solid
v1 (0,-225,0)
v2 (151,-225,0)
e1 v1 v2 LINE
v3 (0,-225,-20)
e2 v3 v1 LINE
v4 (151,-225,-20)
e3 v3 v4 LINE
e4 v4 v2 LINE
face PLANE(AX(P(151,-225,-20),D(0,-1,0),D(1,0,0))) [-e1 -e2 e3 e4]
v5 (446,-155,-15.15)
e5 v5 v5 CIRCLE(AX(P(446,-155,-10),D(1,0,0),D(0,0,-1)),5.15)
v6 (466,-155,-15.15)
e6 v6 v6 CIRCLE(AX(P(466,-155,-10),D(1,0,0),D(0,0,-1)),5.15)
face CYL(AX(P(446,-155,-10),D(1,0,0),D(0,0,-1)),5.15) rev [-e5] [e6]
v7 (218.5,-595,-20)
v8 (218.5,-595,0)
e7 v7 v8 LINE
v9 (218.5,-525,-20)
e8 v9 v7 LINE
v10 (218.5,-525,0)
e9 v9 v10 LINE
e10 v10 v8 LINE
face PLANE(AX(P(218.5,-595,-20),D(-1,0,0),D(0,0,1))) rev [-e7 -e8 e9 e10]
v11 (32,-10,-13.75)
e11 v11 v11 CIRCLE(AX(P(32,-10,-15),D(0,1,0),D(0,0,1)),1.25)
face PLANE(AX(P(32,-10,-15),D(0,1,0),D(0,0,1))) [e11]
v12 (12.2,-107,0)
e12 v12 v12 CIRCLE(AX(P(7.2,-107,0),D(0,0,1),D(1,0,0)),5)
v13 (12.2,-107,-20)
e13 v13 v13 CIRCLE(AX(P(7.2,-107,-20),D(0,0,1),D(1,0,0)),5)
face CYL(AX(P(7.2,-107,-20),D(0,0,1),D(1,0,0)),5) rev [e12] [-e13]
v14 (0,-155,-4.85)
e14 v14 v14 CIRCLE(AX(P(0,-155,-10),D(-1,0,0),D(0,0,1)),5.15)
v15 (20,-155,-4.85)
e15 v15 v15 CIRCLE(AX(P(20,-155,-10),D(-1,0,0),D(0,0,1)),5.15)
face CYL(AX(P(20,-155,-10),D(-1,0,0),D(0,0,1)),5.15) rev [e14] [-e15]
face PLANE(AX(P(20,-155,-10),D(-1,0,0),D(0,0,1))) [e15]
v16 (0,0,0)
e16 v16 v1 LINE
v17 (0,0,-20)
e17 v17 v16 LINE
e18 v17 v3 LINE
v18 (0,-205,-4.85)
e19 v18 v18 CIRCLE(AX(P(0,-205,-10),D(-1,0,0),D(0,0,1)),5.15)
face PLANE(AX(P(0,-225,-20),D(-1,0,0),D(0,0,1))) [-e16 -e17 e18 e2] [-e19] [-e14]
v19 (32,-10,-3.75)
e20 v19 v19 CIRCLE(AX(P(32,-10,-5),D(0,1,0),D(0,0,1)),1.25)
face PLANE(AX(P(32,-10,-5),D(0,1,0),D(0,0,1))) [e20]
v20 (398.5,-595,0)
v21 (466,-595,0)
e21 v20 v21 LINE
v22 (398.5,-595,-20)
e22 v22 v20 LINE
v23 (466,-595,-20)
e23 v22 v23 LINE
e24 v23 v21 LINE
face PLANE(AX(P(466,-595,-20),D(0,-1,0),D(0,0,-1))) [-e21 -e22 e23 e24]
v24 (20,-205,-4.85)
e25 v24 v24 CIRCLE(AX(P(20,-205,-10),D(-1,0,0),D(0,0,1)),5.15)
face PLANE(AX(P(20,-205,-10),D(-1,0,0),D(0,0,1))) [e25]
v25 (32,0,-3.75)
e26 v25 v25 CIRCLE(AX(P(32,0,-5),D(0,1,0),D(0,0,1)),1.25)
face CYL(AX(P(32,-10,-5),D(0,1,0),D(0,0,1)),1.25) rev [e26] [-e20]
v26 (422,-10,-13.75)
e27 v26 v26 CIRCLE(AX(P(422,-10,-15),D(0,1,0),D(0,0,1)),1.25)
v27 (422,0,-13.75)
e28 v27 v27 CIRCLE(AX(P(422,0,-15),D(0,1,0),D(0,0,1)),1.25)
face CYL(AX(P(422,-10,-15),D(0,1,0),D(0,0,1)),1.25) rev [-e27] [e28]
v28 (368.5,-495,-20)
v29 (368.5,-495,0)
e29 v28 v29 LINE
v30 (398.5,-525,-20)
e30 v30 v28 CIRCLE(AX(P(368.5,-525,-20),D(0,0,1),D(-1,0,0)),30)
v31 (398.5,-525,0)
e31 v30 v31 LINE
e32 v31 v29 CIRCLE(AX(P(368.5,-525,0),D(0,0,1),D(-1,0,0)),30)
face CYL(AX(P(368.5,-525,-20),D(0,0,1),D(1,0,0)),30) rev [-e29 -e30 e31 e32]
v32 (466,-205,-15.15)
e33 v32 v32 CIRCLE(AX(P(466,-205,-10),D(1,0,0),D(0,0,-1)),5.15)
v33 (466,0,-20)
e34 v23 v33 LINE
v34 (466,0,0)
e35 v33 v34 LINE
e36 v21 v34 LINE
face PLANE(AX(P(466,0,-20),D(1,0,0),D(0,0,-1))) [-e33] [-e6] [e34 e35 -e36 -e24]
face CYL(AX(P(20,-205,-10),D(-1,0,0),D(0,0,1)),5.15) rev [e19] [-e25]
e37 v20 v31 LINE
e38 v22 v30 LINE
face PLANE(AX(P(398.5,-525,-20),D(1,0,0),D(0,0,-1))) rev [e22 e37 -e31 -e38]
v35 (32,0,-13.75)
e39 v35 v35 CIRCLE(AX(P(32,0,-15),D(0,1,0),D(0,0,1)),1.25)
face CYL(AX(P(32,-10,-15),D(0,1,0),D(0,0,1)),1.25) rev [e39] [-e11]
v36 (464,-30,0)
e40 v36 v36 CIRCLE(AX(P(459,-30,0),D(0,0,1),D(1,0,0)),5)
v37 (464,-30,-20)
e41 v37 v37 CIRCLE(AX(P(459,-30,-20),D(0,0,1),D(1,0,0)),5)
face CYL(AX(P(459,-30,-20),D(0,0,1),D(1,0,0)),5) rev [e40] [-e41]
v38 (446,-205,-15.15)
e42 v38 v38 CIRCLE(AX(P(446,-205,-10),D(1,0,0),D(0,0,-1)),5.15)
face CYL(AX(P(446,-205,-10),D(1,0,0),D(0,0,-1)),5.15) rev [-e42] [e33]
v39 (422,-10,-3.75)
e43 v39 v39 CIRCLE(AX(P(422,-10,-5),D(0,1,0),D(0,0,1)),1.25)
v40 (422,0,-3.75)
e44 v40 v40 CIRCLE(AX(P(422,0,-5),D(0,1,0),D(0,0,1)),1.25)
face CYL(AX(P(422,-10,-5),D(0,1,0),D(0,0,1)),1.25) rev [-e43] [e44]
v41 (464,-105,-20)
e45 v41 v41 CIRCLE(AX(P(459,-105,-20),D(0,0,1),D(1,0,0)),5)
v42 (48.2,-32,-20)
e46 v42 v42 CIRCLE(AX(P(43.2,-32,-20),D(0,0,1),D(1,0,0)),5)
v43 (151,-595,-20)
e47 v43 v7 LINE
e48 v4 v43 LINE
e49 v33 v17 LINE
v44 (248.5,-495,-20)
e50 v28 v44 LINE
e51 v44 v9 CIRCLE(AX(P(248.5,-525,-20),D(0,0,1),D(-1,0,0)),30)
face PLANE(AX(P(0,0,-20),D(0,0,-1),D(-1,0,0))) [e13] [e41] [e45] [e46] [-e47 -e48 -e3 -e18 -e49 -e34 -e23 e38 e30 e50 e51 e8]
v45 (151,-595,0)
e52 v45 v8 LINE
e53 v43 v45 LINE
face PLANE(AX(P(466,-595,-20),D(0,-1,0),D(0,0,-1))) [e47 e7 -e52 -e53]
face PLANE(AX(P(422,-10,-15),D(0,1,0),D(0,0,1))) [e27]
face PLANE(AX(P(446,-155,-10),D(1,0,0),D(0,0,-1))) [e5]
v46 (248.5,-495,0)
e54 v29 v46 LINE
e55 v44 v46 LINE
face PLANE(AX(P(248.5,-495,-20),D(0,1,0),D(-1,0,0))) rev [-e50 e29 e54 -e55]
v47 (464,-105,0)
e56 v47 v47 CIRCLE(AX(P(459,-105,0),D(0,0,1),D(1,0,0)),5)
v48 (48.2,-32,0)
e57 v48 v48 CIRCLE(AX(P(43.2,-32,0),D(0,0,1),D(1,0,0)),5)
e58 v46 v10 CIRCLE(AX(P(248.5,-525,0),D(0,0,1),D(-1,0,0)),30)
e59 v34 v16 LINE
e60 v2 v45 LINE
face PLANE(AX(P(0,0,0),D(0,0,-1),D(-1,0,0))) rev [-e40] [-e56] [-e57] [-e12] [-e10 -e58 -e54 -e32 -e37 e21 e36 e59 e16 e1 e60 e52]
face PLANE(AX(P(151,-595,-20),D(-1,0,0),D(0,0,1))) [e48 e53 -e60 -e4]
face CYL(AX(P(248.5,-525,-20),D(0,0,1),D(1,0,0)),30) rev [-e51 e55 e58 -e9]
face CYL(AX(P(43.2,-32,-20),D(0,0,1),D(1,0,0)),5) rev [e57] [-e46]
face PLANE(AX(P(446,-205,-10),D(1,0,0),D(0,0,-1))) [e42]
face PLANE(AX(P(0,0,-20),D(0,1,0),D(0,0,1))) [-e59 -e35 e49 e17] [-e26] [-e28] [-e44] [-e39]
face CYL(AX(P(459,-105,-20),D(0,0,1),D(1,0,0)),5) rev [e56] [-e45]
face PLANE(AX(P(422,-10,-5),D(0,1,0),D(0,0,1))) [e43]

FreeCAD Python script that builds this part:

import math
import FreeCAD as App
import Part
import Sketcher

V = App.Vector

doc = App.newDocument("Part")
body = doc.addObject("PartDesign::Body", "Body")

# Sketch on XY plane
sketch1 = body.newObject("Sketcher::SketchObject", "Sketch")
sketch1.AttachmentSupport = (doc.getObject("XY_Plane"), [""])
sketch1.MapMode = "FlatFace"
sketch1.addGeometry([
    Part.LineSegment(V(466, 0, 0), V(0, 0, 0)),  # 0
    Part.LineSegment(V(0, 0, 0), V(0, -225, 0)),  # 1
    Part.LineSegment(V(0, -225, 0), V(151, -225, 0)),  # 2
    Part.LineSegment(V(151, -225, 0), V(151, -595, 0)),  # 3
    Part.LineSegment(V(151, -595, 0), V(466, -595, 0)),  # 4
    Part.LineSegment(V(466, -595, 0), V(466, 0, 0)),  # 5
], False)
sketch1.addConstraint([
    Sketcher.Constraint("Coincident", 0, 2, 1, 1),
    Sketcher.Constraint("Coincident", 1, 2, 2, 1),
    Sketcher.Constraint("Coincident", 2, 2, 3, 1),
    Sketcher.Constraint("Coincident", 3, 2, 4, 1),
    Sketcher.Constraint("Coincident", 4, 2, 5, 1),
    Sketcher.Constraint("Coincident", 5, 2, 0, 1),
    Sketcher.Constraint("Horizontal", 0),
    Sketcher.Constraint("Vertical", 1),
    Sketcher.Constraint("Horizontal", 2),
    Sketcher.Constraint("Vertical", 3),
    Sketcher.Constraint("Horizontal", 4),
    Sketcher.Constraint("Vertical", 5),
    Sketcher.Constraint("Coincident", 0, 2, -1, 1),
    Sketcher.Constraint("DistanceX", 0, 2, 0, 1, 466.0),
    Sketcher.Constraint("DistanceX", 2, 1, 2, 2, 151.0),
    Sketcher.Constraint("DistanceY", 1, 2, 1, 1, 225.0),
    Sketcher.Constraint("DistanceY", 3, 2, 3, 1, 370.0),
])
pad1 = body.newObject("PartDesign::Pad", "Pad")
pad1.Profile = sketch1
pad1.Length = 20
pad1.Reversed = True

# Sketch on XY plane
sketch2 = body.newObject("Sketcher::SketchObject", "Sketch001")
sketch2.AttachmentSupport = (doc.getObject("XY_Plane"), [""])
sketch2.MapMode = "FlatFace"
sketch2.addGeometry([
    Part.Circle(V(43, -32, 0), V(0, 0, 1), 5),  # 0
    Part.Circle(V(459, -30, 0), V(0, 0, 1), 5),  # 1
    Part.Circle(V(459, -105, 0), V(0, 0, 1), 5),  # 2
    Part.Circle(V(7, -107, 0), V(0, 0, 1), 5),  # 3
    Part.LineSegment(V(218, -525, 0), V(218, -595, 0)),  # 4
    Part.LineSegment(V(218, -595, 0), V(398, -595, 0)),  # 5
    Part.LineSegment(V(398, -595, 0), V(398, -525, 0)),  # 6
    Part.ArcOfCircle(Part.Circle(V(369, -525, 0), V(0, 0, 1), 30), math.radians(0), math.radians(90)),  # 7
    Part.LineSegment(V(368, -495, 0), V(248, -495, 0)),  # 8
    Part.ArcOfCircle(Part.Circle(V(248, -525, 0), V(0, 0, 1), 30), math.radians(90), math.radians(180)),  # 9
], False)
sketch2.addConstraint([
    Sketcher.Constraint("Coincident", 4, 2, 5, 1),
    Sketcher.Constraint("Coincident", 5, 2, 6, 1),
    Sketcher.Constraint("Tangent", 6, 2, 7, 1),
    Sketcher.Constraint("Tangent", 7, 2, 8, 1),
    Sketcher.Constraint("Tangent", 8, 2, 9, 1),
    Sketcher.Constraint("Tangent", 9, 2, 4, 1),
    Sketcher.Constraint("Vertical", 4),
    Sketcher.Constraint("Horizontal", 5),
    Sketcher.Constraint("Vertical", 6),
    Sketcher.Constraint("Horizontal", 8),
    Sketcher.Constraint("Equal", 0, 1),
    Sketcher.Constraint("Equal", 1, 2),
    Sketcher.Constraint("Equal", 2, 3),
    Sketcher.Constraint("Equal", 7, 9),
    Sketcher.Constraint("Vertical", 1, 3, 2, 3),
    Sketcher.Constraint("Diameter", 0, 10.0),
    Sketcher.Constraint("Radius", 7, 30.0),
    Sketcher.Constraint("DistanceX", 5, 1, 5, 2, 180.0),
    Sketcher.Constraint("DistanceY", 4, 2, 4, 1, 70.0),
    Sketcher.Constraint("DistanceY", 0, 3, -1, 1, 32.0),
    Sketcher.Constraint("DistanceX", -1, 1, 1, 3, 459.0),
    Sketcher.Constraint("DistanceY", 1, 3, -1, 1, 30.0),
    Sketcher.Constraint("DistanceY", 2, 3, -1, 1, 105.0),
    Sketcher.Constraint("DistanceY", 3, 3, -1, 1, 107.0),
    Sketcher.Constraint("DistanceY", 7, 3, -1, 1, 525.0),
    Sketcher.Constraint("DistanceX", 3, 3, 0, 3, 36.0),
    Sketcher.Constraint("DistanceX", -1, 1, 0, 3, 43.2),
    Sketcher.Constraint("DistanceX", -1, 1, 7, 3, 368.5),
])
pocket1 = body.newObject("PartDesign::Pocket", "Pocket")
pocket1.Profile = sketch2
pocket1.Type = "ThroughAll"

# Sketch on YZ plane
sketch3 = body.newObject("Sketcher::SketchObject", "Sketch002")
sketch3.AttachmentSupport = (doc.getObject("YZ_Plane"), [""])
sketch3.MapMode = "FlatFace"
sketch3.addGeometry([
    Part.Circle(V(-155, -10, 0), V(0, 0, 1), 5),
    Part.Circle(V(-205, -10, 0), V(0, 0, 1), 5),
], False)
sketch3.addConstraint([
    Sketcher.Constraint("Equal", 0, 1),
    Sketcher.Constraint("Horizontal", 0, 3, 1, 3),
    Sketcher.Constraint("Diameter", 0, 10.3),
    Sketcher.Constraint("DistanceX", 0, 3, -1, 1, 155.0),
    Sketcher.Constraint("DistanceY", 0, 3, -1, 1, 10.0),
    Sketcher.Constraint("DistanceX", 1, 3, -1, 1, 205.0),
])
pocket2 = body.newObject("PartDesign::Pocket", "Pocket001")
pocket2.Profile = sketch3
pocket2.Length = 20
pocket2.Reversed = True

# Sketch on YZ plane
sketch4 = body.newObject("Sketcher::SketchObject", "Sketch003")
sketch4.AttachmentSupport = (doc.getObject("YZ_Plane"), [""])
sketch4.MapMode = "FlatFace"
sketch4.AttachmentOffset = App.Placement(V(0, 0, 446), App.Rotation())
sketch4.addGeometry([
    Part.Circle(V(-155, -10, 0), V(0, 0, 1), 5),
    Part.Circle(V(-205, -10, 0), V(0, 0, 1), 5),
], False)
sketch4.addConstraint([
    Sketcher.Constraint("Equal", 0, 1),
    Sketcher.Constraint("Horizontal", 0, 3, 1, 3),
    Sketcher.Constraint("Diameter", 0, 10.3),
    Sketcher.Constraint("DistanceX", 0, 3, -1, 1, 155.0),
    Sketcher.Constraint("DistanceY", 0, 3, -1, 1, 10.0),
    Sketcher.Constraint("DistanceX", 1, 3, -1, 1, 205.0),
])
pocket3 = body.newObject("PartDesign::Pocket", "Pocket002")
pocket3.Profile = sketch4
pocket3.Length = 20
pocket3.Reversed = True

# Sketch on XZ plane
sketch5 = body.newObject("Sketcher::SketchObject", "Sketch004")
sketch5.AttachmentSupport = (doc.getObject("XZ_Plane"), [""])
sketch5.MapMode = "FlatFace"
sketch5.addGeometry([
    Part.Circle(V(32, -15, 0), V(0, 0, 1), 1.2),
    Part.Circle(V(32, -5, 0), V(0, 0, 1), 1.2),
    Part.Circle(V(422, -15, 0), V(0, 0, 1), 1.2),
    Part.Circle(V(422, -5, 0), V(0, 0, 1), 1.2),
], False)
sketch5.addConstraint([
    Sketcher.Constraint("Equal", 0, 1),
    Sketcher.Constraint("Equal", 1, 2),
    Sketcher.Constraint("Equal", 2, 3),
    Sketcher.Constraint("Horizontal", 0, 3, 2, 3),
    Sketcher.Constraint("Horizontal", 1, 3, 3, 3),
    Sketcher.Constraint("Vertical", 0, 3, 1, 3),
    Sketcher.Constraint("Vertical", 2, 3, 3, 3),
    Sketcher.Constraint("Diameter", 0, 2.5),
    Sketcher.Constraint("DistanceX", -1, 1, 0, 3, 32.0),
    Sketcher.Constraint("DistanceY", 0, 3, -1, 1, 15.0),
    Sketcher.Constraint("DistanceY", 1, 3, -1, 1, 5.0),
    Sketcher.Constraint("DistanceX", -1, 1, 2, 3, 422.0),
])
pocket4 = body.newObject("PartDesign::Pocket", "Pocket003")
pocket4.Profile = sketch5
pocket4.Length = 10
pocket4.Reversed = True

doc.recompute()
